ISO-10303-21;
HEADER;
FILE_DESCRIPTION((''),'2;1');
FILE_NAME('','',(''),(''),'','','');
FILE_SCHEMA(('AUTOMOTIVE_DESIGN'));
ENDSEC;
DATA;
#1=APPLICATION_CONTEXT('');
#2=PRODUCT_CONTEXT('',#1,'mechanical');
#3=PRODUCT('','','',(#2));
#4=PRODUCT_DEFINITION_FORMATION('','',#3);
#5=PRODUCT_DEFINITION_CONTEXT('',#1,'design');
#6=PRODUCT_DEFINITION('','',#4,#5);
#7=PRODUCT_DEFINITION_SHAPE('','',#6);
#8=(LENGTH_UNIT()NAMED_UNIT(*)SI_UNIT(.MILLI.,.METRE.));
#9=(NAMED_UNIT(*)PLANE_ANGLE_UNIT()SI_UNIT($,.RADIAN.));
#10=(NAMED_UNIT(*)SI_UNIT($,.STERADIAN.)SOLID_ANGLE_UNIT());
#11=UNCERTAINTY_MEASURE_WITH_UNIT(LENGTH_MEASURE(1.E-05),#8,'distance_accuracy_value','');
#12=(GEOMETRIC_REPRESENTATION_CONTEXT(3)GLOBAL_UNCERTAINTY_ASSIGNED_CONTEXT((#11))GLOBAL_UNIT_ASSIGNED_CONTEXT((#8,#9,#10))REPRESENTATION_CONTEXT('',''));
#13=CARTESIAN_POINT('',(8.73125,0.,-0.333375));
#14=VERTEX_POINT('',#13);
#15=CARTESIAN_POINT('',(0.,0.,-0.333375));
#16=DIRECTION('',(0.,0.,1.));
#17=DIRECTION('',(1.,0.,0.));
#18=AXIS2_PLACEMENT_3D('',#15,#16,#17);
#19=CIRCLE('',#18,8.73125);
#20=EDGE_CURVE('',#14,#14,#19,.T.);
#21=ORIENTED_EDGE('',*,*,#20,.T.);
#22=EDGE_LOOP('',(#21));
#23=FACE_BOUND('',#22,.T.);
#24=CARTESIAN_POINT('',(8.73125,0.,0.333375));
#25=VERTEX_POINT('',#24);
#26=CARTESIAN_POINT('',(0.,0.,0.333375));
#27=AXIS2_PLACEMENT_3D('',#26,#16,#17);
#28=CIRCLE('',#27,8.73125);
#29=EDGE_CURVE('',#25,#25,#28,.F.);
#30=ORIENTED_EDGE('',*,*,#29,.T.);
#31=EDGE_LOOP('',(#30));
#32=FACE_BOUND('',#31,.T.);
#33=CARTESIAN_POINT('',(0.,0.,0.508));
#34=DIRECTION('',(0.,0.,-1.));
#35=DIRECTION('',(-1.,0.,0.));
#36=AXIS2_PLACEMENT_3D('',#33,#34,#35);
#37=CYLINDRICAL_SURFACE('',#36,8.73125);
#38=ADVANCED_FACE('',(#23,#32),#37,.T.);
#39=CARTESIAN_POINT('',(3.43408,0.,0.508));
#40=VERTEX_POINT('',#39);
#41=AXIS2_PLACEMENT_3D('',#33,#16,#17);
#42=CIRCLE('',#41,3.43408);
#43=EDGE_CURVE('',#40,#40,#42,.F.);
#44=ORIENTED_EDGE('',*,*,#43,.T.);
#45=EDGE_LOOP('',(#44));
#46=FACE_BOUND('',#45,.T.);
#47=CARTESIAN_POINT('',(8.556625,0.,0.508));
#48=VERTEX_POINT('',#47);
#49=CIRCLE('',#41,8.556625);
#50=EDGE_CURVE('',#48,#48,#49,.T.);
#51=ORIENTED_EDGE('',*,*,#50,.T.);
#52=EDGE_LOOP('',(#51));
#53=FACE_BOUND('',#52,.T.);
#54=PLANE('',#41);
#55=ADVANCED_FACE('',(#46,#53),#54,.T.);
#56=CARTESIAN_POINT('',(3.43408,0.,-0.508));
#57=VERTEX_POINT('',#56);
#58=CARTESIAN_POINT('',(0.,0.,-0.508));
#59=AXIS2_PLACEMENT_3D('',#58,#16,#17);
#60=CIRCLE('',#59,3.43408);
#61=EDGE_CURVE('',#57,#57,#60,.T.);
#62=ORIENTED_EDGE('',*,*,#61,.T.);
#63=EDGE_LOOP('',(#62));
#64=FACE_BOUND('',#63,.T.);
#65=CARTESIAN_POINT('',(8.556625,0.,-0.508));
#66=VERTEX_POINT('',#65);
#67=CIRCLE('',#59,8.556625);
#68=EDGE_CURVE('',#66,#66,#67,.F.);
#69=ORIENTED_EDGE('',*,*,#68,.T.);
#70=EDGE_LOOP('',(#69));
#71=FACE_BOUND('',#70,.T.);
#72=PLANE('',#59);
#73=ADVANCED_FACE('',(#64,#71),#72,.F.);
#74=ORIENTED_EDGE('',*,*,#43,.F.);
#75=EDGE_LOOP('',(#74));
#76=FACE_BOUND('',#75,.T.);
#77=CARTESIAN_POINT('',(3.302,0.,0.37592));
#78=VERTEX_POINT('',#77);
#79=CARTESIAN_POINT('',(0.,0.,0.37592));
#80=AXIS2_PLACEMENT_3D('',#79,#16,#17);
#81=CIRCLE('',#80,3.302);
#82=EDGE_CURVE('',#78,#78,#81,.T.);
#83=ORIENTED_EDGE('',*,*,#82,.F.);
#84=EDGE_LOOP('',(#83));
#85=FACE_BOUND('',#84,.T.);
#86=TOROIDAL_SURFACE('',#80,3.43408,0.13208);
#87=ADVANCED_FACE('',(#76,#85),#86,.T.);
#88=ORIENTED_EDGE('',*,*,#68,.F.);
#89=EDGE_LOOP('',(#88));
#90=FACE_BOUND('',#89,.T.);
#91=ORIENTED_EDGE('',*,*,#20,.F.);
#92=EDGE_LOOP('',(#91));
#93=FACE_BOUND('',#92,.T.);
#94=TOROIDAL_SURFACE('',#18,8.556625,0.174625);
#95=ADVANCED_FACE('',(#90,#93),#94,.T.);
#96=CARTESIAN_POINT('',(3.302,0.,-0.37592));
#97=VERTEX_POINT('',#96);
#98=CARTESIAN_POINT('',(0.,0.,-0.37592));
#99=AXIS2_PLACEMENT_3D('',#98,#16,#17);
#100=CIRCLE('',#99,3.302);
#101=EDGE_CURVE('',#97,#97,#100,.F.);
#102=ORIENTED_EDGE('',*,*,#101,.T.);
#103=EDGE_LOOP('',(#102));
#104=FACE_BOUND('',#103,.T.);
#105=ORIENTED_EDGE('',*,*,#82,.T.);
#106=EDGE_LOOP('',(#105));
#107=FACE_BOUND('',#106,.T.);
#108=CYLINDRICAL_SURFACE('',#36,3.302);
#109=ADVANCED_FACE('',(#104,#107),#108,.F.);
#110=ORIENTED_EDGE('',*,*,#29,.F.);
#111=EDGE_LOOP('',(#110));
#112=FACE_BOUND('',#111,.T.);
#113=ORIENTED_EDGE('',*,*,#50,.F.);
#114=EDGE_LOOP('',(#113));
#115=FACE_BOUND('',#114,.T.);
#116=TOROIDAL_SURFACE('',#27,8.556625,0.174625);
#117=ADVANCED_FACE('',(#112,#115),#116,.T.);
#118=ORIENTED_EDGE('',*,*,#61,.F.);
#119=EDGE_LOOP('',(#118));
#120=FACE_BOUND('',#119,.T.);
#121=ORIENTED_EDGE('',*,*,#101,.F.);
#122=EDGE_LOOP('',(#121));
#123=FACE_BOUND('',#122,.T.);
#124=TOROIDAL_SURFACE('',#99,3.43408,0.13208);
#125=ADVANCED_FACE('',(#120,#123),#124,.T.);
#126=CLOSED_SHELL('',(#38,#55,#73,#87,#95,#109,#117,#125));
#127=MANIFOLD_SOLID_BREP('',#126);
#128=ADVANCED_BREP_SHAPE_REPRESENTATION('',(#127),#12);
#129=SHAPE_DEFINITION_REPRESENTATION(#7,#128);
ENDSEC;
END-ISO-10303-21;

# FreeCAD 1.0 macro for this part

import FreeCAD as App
import Part
import Sketcher

V = App.Vector
Q = App.Units.Quantity


def edges_at(feature, points):
    """Names of the edges that pass closest to the given points."""
    edges = feature.Shape.Edges
    near = lambda p: min(range(len(edges)), key=lambda i: edges[i].distToShape(Part.Vertex(*p))[0])
    return sorted({f"Edge{near(p) + 1}" for p in points})

doc = App.newDocument("Part")
body = doc.addObject("PartDesign::Body", "Body")

# Sketch on XY plane
sketch1 = body.newObject("Sketcher::SketchObject", "Sketch")
sketch1.AttachmentSupport = (doc.getObject("XY_Plane"), [""])
sketch1.MapMode = "FlatFace"
sketch1.addGeometry([
    Part.Circle(V(0, 0, 0), V(0, 0, 1), 8.7),
    Part.Circle(V(0, 0, 0), V(0, 0, 1), 3.3),
], False)
sketch1.addConstraint([
    Sketcher.Constraint("Coincident", 0, 3, -1, 1),
    Sketcher.Constraint("Coincident", 1, 3, -1, 1),
    Sketcher.Constraint("Diameter", 1, Q("0.26 in")),
    Sketcher.Constraint("Diameter", 0, Q("0.6875 in")),
])
pad1 = body.newObject("PartDesign::Pad", "Pad")
pad1.Profile = sketch1
pad1.Type = "TwoLengths"
pad1.Length = Q("0.02 in")
pad1.Length2 = Q("0.02 in")
doc.recompute()

fillet = body.newObject("PartDesign::Fillet", "Fillet")
fillet.Base = (pad1, edges_at(pad1, [(-3.302, 0, 0.508), (-3.302, 0, -0.508)]))
fillet.Radius = Q("0.0052 in")
doc.recompute()

fillet2 = body.newObject("PartDesign::Fillet", "Fillet001")
fillet2.Base = (fillet, edges_at(fillet, [(-8.731, 0, 0.508), (-8.731, 0, -0.508)]))
fillet2.Radius = 0.174625

doc.recompute()
